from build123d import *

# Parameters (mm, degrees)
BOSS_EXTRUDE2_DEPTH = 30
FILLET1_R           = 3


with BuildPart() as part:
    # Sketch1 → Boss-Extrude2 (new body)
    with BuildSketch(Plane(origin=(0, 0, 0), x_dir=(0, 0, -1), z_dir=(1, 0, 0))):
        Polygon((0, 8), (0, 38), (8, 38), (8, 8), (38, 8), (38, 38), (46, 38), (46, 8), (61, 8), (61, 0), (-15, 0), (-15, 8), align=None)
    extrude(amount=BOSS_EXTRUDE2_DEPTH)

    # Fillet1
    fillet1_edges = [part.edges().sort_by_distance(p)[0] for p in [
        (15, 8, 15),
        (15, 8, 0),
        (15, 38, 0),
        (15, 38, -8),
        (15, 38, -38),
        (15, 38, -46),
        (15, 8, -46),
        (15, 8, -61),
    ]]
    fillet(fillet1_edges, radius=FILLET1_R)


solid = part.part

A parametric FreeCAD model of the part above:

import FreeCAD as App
import Part
import Sketcher


def edges_at(feature, points):
    """Names of the edges that pass closest to the given points."""
    edges = feature.Shape.Edges
    near = lambda p: min(range(len(edges)), key=lambda i: edges[i].distToShape(Part.Vertex(*p))[0])
    return sorted({f"Edge{near(p) + 1}" for p in points})

doc = App.newDocument("Part")
body = doc.addObject("PartDesign::Body", "Body")

# Sketch on YZ plane
sketch1 = body.newObject("Sketcher::SketchObject", "Sketch")
sketch1.AttachmentSupport = (doc.getObject("YZ_Plane"), [""])
sketch1.MapMode = "FlatFace"
sketch1.addGeometry(Part.LineSegment(App.Vector(38, 0, 0), App.Vector(8, 0, 0)), False)
sketch1.addGeometry(Part.LineSegment(App.Vector(8, 0, 0), App.Vector(8, 15, 0)), False)
sketch1.addGeometry(Part.LineSegment(App.Vector(8, 15, 0), App.Vector(0, 15, 0)), False)
sketch1.addGeometry(Part.LineSegment(App.Vector(0, 15, 0), App.Vector(0, -61, 0)), False)
sketch1.addGeometry(Part.LineSegment(App.Vector(0, -61, 0), App.Vector(8, -61, 0)), False)
sketch1.addGeometry(Part.LineSegment(App.Vector(8, -61, 0), App.Vector(8, -46, 0)), False)
sketch1.addGeometry(Part.LineSegment(App.Vector(8, -46, 0), App.Vector(38, -46, 0)), False)
sketch1.addGeometry(Part.LineSegment(App.Vector(38, -46, 0), App.Vector(38, -38, 0)), False)
sketch1.addGeometry(Part.LineSegment(App.Vector(38, -38, 0), App.Vector(8, -38, 0)), False)
sketch1.addGeometry(Part.LineSegment(App.Vector(8, -38, 0), App.Vector(8, -8, 0)), False)
sketch1.addGeometry(Part.LineSegment(App.Vector(8, -8, 0), App.Vector(38, -8, 0)), False)
sketch1.addGeometry(Part.LineSegment(App.Vector(38, -8, 0), App.Vector(38, 0, 0)), False)
sketch1.addConstraint(Sketcher.Constraint("Coincident", 0, 2, 1, 1))
sketch1.addConstraint(Sketcher.Constraint("Coincident", 1, 2, 2, 1))
sketch1.addConstraint(Sketcher.Constraint("Coincident", 2, 2, 3, 1))
sketch1.addConstraint(Sketcher.Constraint("Coincident", 3, 2, 4, 1))
sketch1.addConstraint(Sketcher.Constraint("Coincident", 4, 2, 5, 1))
sketch1.addConstraint(Sketcher.Constraint("Coincident", 5, 2, 6, 1))
sketch1.addConstraint(Sketcher.Constraint("Coincident", 6, 2, 7, 1))
sketch1.addConstraint(Sketcher.Constraint("Coincident", 7, 2, 8, 1))
sketch1.addConstraint(Sketcher.Constraint("Coincident", 8, 2, 9, 1))
sketch1.addConstraint(Sketcher.Constraint("Coincident", 9, 2, 10, 1))
sketch1.addConstraint(Sketcher.Constraint("Coincident", 10, 2, 11, 1))
sketch1.addConstraint(Sketcher.Constraint("Coincident", 11, 2, 0, 1))
sketch1.addConstraint(Sketcher.Constraint("Horizontal", 0))
sketch1.addConstraint(Sketcher.Constraint("Vertical", 1))
sketch1.addConstraint(Sketcher.Constraint("Horizontal", 2))
sketch1.addConstraint(Sketcher.Constraint("Vertical", 3))
sketch1.addConstraint(Sketcher.Constraint("Horizontal", 4))
sketch1.addConstraint(Sketcher.Constraint("Vertical", 5))
sketch1.addConstraint(Sketcher.Constraint("Horizontal", 6))
sketch1.addConstraint(Sketcher.Constraint("Vertical", 7))
sketch1.addConstraint(Sketcher.Constraint("Horizontal", 8))
sketch1.addConstraint(Sketcher.Constraint("Vertical", 9))
sketch1.addConstraint(Sketcher.Constraint("Horizontal", 10))
sketch1.addConstraint(Sketcher.Constraint("Vertical", 11))
sketch1.addConstraint(Sketcher.Constraint("PointOnObject", 0, 2, -1))
sketch1.addConstraint(Sketcher.Constraint("PointOnObject", 2, 2, -2))
sketch1.addConstraint(Sketcher.Constraint("Vertical", 1, 2, 4, 2))
sketch1.addConstraint(Sketcher.Constraint("Vertical", 5, 2, 8, 2))
sketch1.addConstraint(Sketcher.Constraint("Vertical", 7, 2, 10, 2))
sketch1.addConstraint(Sketcher.Constraint("Equal", 1, 5))
sketch1.addConstraint(Sketcher.Constraint("Equal", 4, 7))
sketch1.addConstraint(Sketcher.Constraint("Equal", 10, 9))
sketch1.addConstraint(Sketcher.Constraint("Equal", 7, 11))
sketch1.addConstraint(Sketcher.Constraint("DistanceX", 0, 2, 0, 1, 30.0))
sketch1.addConstraint(Sketcher.Constraint("DistanceX", 2, 2, 2, 1, 8.0))
sketch1.addConstraint(Sketcher.Constraint("DistanceY", 1, 1, 1, 2, 15.0))
pad1 = body.newObject("PartDesign::Pad", "Pad")
pad1.Profile = sketch1
pad1.Length = 30
doc.recompute()

fillet = body.newObject("PartDesign::Fillet", "Fillet")
fillet.Base = (pad1, edges_at(pad1, [
    (15, 8, 15),
    (15, 8, 0),
    (15, 38, 0),
    (15, 38, -8),
    (15, 38, -38),
    (15, 38, -46),
    (15, 8, -46),
    (15, 8, -61),
]))
fillet.Radius = 3

doc.recompute()
